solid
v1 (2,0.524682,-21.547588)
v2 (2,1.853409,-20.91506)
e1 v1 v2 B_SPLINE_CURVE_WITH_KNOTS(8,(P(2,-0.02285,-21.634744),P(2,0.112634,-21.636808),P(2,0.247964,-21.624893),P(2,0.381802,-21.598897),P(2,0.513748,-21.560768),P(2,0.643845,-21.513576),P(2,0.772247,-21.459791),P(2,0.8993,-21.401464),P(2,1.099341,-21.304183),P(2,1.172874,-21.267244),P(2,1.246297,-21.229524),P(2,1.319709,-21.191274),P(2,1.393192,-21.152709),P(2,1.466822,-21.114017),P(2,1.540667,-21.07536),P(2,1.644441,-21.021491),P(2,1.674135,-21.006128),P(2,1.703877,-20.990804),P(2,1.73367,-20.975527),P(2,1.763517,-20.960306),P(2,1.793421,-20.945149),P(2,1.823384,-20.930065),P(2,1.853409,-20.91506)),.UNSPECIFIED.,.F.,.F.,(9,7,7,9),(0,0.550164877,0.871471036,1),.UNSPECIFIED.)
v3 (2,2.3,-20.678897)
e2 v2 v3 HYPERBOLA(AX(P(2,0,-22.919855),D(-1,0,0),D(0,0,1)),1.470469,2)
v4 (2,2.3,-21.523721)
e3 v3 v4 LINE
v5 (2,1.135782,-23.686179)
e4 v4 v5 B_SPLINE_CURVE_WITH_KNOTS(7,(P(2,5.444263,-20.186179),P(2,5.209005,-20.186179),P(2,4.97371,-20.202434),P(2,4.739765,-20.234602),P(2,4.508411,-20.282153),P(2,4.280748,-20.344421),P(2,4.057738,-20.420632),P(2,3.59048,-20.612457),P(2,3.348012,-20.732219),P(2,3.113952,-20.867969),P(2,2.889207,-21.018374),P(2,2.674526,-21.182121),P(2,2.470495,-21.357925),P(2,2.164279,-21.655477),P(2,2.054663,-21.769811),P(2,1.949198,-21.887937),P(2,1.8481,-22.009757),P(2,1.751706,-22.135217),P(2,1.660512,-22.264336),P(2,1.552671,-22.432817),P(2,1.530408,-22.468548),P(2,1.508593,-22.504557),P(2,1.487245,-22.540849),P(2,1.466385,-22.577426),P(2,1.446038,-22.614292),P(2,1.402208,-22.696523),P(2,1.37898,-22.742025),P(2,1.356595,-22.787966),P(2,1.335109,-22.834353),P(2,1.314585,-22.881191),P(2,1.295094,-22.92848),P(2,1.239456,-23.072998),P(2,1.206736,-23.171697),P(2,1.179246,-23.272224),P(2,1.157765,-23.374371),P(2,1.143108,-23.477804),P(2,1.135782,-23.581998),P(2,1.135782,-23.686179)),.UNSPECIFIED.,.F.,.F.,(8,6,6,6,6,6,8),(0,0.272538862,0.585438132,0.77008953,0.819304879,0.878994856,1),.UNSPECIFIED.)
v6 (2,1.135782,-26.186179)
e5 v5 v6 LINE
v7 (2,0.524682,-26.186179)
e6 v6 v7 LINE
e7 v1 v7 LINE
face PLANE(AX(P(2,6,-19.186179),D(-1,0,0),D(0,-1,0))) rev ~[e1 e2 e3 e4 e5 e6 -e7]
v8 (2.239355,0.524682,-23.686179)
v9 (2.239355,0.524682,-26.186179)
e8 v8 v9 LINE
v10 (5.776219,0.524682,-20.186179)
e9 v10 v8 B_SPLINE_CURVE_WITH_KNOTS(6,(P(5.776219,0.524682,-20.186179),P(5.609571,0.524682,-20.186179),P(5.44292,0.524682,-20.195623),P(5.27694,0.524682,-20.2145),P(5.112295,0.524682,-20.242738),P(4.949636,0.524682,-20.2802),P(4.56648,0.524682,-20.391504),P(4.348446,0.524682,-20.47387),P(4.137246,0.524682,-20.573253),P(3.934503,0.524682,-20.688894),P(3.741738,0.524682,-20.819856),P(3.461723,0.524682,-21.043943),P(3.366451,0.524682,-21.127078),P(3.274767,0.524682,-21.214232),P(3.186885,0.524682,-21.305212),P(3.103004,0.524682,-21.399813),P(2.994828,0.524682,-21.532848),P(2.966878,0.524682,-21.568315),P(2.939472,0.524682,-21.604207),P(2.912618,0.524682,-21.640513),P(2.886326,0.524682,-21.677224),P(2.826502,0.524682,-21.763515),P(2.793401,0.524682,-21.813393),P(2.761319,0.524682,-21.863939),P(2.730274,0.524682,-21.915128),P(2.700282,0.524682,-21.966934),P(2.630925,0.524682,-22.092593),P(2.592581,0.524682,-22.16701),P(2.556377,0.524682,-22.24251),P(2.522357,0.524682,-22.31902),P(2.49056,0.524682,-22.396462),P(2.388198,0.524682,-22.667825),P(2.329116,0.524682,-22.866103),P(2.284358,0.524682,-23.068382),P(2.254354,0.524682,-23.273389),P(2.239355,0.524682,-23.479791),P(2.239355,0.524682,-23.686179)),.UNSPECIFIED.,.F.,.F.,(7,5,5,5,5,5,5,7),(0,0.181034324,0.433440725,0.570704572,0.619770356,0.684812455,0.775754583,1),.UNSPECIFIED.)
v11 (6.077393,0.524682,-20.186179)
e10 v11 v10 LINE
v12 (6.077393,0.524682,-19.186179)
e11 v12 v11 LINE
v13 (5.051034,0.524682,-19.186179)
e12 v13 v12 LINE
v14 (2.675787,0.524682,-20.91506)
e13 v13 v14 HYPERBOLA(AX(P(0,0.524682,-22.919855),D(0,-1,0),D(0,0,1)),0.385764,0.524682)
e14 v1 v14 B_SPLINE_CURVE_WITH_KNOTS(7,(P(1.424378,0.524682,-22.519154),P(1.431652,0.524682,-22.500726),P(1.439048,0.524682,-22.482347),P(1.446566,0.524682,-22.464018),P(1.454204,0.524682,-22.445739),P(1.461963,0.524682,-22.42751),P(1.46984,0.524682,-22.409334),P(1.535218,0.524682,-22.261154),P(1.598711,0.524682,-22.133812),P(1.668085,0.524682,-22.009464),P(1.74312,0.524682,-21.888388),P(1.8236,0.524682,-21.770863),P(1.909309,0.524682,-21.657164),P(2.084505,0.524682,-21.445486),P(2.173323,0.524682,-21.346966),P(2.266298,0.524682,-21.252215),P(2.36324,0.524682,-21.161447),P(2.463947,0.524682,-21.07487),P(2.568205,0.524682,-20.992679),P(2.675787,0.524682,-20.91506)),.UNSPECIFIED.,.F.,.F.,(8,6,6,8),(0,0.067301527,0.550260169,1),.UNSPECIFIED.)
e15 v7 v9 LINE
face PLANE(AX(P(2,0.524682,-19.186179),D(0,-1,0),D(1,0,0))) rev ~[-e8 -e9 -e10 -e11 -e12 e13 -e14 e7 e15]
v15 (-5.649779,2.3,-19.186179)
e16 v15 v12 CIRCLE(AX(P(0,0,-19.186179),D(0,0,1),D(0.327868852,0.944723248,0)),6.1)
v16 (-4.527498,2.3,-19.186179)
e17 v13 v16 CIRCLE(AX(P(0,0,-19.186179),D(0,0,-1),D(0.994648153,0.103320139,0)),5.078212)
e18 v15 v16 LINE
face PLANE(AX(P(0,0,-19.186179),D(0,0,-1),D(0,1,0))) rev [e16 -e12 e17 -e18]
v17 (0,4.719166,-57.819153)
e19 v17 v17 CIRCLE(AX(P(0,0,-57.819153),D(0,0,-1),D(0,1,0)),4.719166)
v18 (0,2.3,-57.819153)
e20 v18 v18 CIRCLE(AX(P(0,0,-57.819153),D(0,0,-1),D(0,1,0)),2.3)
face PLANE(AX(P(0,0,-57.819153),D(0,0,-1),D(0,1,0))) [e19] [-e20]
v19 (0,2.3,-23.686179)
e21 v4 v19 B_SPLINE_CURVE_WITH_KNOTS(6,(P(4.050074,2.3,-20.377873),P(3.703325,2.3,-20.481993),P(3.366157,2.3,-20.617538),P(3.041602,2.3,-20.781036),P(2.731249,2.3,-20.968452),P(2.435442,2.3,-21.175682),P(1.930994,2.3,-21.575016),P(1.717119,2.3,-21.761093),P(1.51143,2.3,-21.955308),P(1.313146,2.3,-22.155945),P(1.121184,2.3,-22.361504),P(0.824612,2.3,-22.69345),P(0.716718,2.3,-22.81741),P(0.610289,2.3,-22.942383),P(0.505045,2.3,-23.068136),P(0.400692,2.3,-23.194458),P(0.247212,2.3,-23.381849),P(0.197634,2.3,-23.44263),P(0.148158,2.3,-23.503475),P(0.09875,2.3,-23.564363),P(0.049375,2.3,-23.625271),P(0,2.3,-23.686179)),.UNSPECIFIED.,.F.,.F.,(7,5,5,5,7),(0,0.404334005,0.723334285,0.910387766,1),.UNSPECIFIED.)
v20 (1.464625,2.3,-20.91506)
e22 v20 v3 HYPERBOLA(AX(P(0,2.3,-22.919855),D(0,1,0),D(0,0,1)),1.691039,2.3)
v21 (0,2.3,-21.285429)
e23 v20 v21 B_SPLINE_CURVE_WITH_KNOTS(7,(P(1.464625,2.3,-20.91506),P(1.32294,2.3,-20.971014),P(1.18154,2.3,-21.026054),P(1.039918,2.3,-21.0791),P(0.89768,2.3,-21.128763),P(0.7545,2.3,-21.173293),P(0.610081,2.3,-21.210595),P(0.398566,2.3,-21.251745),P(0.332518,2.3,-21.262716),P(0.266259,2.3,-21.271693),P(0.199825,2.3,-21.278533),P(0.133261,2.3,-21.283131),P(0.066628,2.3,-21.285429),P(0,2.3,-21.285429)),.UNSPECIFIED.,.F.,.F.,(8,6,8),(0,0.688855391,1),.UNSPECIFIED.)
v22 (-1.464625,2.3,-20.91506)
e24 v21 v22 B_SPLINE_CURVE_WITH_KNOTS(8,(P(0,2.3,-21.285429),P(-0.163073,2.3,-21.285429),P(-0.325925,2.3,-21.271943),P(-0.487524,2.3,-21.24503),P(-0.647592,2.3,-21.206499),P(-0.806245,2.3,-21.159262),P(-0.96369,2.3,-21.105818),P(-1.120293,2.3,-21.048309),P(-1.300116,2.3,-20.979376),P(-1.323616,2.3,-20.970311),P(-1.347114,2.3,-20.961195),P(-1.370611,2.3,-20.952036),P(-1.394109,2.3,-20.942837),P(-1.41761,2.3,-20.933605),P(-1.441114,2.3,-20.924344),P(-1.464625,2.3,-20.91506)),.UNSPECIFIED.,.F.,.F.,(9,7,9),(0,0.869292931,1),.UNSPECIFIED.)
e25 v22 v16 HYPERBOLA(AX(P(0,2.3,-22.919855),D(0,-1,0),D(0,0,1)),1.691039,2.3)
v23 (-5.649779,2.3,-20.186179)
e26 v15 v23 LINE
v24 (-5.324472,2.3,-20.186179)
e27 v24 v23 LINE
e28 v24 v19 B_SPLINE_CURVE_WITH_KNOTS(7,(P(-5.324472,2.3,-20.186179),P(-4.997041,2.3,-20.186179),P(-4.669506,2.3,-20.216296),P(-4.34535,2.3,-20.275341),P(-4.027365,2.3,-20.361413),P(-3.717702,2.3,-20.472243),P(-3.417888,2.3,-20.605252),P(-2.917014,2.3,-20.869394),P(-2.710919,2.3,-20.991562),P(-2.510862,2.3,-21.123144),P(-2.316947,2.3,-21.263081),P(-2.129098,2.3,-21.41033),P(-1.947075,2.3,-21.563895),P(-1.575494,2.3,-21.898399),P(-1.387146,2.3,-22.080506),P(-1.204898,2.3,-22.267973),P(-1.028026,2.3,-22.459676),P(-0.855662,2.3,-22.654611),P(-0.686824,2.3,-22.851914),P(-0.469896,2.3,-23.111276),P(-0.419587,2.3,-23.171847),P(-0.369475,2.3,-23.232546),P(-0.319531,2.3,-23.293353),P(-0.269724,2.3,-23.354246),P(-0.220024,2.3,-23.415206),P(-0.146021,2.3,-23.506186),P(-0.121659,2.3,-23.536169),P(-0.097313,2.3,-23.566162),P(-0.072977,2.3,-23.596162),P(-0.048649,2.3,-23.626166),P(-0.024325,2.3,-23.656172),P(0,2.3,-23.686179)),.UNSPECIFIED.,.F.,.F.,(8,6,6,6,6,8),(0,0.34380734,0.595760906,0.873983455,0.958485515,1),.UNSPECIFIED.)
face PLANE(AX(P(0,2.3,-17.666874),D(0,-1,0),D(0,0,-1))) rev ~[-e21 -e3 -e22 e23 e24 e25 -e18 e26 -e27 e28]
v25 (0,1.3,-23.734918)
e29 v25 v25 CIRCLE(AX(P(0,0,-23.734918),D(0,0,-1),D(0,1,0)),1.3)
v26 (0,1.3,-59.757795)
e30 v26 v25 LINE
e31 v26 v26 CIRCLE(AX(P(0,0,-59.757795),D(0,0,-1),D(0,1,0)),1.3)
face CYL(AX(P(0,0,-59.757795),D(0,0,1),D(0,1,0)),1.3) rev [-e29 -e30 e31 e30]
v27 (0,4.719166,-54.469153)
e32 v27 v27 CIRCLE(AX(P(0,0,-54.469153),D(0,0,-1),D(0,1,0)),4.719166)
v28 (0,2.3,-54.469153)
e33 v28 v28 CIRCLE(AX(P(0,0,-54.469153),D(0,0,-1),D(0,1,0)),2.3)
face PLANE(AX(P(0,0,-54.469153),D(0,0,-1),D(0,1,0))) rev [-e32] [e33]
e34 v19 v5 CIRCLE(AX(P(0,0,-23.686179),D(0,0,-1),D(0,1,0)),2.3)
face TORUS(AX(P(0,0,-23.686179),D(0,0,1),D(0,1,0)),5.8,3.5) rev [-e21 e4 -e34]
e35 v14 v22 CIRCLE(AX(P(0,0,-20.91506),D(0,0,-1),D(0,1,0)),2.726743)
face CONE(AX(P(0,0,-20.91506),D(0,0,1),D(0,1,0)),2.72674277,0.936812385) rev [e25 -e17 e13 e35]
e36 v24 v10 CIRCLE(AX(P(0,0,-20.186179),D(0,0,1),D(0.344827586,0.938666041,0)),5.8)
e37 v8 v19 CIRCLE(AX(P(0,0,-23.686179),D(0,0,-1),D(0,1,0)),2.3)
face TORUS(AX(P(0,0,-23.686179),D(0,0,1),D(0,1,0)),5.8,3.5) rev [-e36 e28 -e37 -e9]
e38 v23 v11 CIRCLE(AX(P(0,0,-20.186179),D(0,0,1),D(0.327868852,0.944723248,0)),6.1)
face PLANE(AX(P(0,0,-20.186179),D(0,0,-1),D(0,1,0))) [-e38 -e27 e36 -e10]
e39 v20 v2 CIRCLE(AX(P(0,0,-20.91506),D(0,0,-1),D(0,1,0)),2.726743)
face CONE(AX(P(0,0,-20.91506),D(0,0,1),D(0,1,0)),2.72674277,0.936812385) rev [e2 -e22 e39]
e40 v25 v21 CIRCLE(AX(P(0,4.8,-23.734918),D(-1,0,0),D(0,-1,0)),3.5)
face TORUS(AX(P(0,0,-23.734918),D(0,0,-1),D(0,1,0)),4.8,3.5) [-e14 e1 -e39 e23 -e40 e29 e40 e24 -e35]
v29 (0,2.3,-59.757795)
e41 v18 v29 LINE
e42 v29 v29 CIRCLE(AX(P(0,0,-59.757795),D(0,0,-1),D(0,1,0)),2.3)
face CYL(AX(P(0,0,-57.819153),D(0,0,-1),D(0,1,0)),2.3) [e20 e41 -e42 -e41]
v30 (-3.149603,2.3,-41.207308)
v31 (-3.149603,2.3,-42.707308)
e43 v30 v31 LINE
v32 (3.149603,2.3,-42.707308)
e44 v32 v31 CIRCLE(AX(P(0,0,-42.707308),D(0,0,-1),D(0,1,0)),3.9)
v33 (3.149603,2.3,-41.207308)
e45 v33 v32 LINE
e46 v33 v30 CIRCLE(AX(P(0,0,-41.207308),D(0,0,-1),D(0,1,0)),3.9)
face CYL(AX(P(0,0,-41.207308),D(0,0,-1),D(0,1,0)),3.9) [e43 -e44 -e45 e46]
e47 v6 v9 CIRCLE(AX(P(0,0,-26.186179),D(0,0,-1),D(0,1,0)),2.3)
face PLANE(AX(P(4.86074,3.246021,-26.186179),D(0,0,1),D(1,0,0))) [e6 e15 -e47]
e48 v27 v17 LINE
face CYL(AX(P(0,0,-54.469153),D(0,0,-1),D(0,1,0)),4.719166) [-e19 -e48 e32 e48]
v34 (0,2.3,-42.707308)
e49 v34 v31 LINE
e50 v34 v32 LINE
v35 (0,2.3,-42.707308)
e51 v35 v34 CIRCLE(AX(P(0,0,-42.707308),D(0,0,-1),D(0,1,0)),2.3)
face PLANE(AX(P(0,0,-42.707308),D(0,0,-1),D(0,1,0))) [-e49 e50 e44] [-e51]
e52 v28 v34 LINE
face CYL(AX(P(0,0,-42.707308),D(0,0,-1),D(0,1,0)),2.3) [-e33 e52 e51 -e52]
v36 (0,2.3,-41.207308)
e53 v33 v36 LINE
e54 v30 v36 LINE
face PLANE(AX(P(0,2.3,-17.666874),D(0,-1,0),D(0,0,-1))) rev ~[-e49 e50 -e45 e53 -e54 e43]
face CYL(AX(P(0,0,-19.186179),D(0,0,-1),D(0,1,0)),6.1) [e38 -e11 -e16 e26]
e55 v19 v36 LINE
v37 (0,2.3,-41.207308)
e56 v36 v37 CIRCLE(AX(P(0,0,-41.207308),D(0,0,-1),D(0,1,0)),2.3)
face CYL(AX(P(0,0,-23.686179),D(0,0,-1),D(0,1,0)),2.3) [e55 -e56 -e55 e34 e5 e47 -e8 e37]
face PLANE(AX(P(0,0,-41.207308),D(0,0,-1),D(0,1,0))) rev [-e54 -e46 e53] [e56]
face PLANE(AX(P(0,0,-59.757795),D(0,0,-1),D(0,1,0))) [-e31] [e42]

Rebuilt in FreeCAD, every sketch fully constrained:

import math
import FreeCAD as App
import Part
import Sketcher


def add_polygon(sketch, points):
    """Adds a closed chain of lines whose ends are joined by coincident constraints."""
    first, n = sketch.GeometryCount, len(points)
    for a, b in zip(points, points[1:] + points[:1]):
        sketch.addGeometry(Part.LineSegment(App.Vector(*a, 0), App.Vector(*b, 0)), False)
    for i in range(n):
        sketch.addConstraint(Sketcher.Constraint("Coincident", first + i, 2, first + (i + 1) % n, 1))

doc = App.newDocument("Part")
body = doc.addObject("PartDesign::Body", "Body")

# Sketch on YZ plane
sketch1 = body.newObject("Sketcher::SketchObject", "Sketch")
sketch1.AttachmentSupport = (doc.getObject("YZ_Plane"), [""])
sketch1.MapMode = "FlatFace"
sketch1.addGeometry(Part.LineSegment(App.Vector(6.1, -19.19, 0), App.Vector(5.08, -19.19, 0)), False)
sketch1.addGeometry(Part.LineSegment(App.Vector(5.08, -19.19, 0), App.Vector(2.73, -20.92, 0)), False)
sketch1.addGeometry(Part.ArcOfCircle(Part.Circle(App.Vector(4.8, -23.73, 0), App.Vector(0, 0, 1), 3.5), math.radians(126), math.radians(180)), False)
sketch1.addGeometry(Part.LineSegment(App.Vector(1.3, -23.73, 0), App.Vector(1.3, -59.76, 0)), False)
sketch1.addGeometry(Part.LineSegment(App.Vector(1.3, -59.76, 0), App.Vector(2.3, -59.76, 0)), False)
sketch1.addGeometry(Part.LineSegment(App.Vector(2.3, -59.76, 0), App.Vector(2.3, -57.82, 0)), False)
sketch1.addGeometry(Part.LineSegment(App.Vector(2.3, -57.82, 0), App.Vector(4.72, -57.82, 0)), False)
sketch1.addGeometry(Part.LineSegment(App.Vector(4.72, -57.82, 0), App.Vector(4.72, -54.47, 0)), False)
sketch1.addGeometry(Part.LineSegment(App.Vector(4.72, -54.47, 0), App.Vector(2.3, -54.47, 0)), False)
sketch1.addGeometry(Part.LineSegment(App.Vector(2.3, -54.47, 0), App.Vector(2.3, -42.71, 0)), False)
sketch1.addGeometry(Part.LineSegment(App.Vector(2.3, -42.71, 0), App.Vector(3.9, -42.71, 0)), False)
sketch1.addGeometry(Part.LineSegment(App.Vector(3.9, -42.71, 0), App.Vector(3.9, -41.21, 0)), False)
sketch1.addGeometry(Part.LineSegment(App.Vector(3.9, -41.21, 0), App.Vector(2.3, -41.21, 0)), False)
sketch1.addGeometry(Part.LineSegment(App.Vector(2.3, -41.21, 0), App.Vector(2.3, -23.69, 0)), False)
sketch1.addGeometry(Part.ArcOfCircle(Part.Circle(App.Vector(5.8, -23.69, 0), App.Vector(0, 0, 1), 3.5), math.radians(90), math.radians(180)), False)
sketch1.addGeometry(Part.LineSegment(App.Vector(5.8, -20.19, 0), App.Vector(6.1, -20.19, 0)), False)
sketch1.addGeometry(Part.LineSegment(App.Vector(6.1, -20.19, 0), App.Vector(6.1, -19.19, 0)), False)
sketch1.addConstraint(Sketcher.Constraint("Coincident", 0, 2, 1, 1))
sketch1.addConstraint(Sketcher.Constraint("Tangent", 1, 2, 2, 1))
sketch1.addConstraint(Sketcher.Constraint("Tangent", 2, 2, 3, 1))
sketch1.addConstraint(Sketcher.Constraint("Coincident", 3, 2, 4, 1))
sketch1.addConstraint(Sketcher.Constraint("Coincident", 4, 2, 5, 1))
sketch1.addConstraint(Sketcher.Constraint("Coincident", 5, 2, 6, 1))
sketch1.addConstraint(Sketcher.Constraint("Coincident", 6, 2, 7, 1))
sketch1.addConstraint(Sketcher.Constraint("Coincident", 7, 2, 8, 1))
sketch1.addConstraint(Sketcher.Constraint("Coincident", 8, 2, 9, 1))
sketch1.addConstraint(Sketcher.Constraint("Coincident", 9, 2, 10, 1))
sketch1.addConstraint(Sketcher.Constraint("Coincident", 10, 2, 11, 1))
sketch1.addConstraint(Sketcher.Constraint("Coincident", 11, 2, 12, 1))
sketch1.addConstraint(Sketcher.Constraint("Coincident", 12, 2, 13, 1))
sketch1.addConstraint(Sketcher.Constraint("Tangent", 13, 2, 14, 2))
sketch1.addConstraint(Sketcher.Constraint("Tangent", 14, 1, 15, 1))
sketch1.addConstraint(Sketcher.Constraint("Coincident", 15, 2, 16, 1))
sketch1.addConstraint(Sketcher.Constraint("Coincident", 16, 2, 0, 1))
sketch1.addConstraint(Sketcher.Constraint("Horizontal", 0))
sketch1.addConstraint(Sketcher.Constraint("Vertical", 3))
sketch1.addConstraint(Sketcher.Constraint("Horizontal", 4))
sketch1.addConstraint(Sketcher.Constraint("Vertical", 5))
sketch1.addConstraint(Sketcher.Constraint("Horizontal", 6))
sketch1.addConstraint(Sketcher.Constraint("Vertical", 7))
sketch1.addConstraint(Sketcher.Constraint("Horizontal", 8))
sketch1.addConstraint(Sketcher.Constraint("Vertical", 9))
sketch1.addConstraint(Sketcher.Constraint("Horizontal", 10))
sketch1.addConstraint(Sketcher.Constraint("Vertical", 11))
sketch1.addConstraint(Sketcher.Constraint("Horizontal", 12))
sketch1.addConstraint(Sketcher.Constraint("Vertical", 13))
sketch1.addConstraint(Sketcher.Constraint("Horizontal", 15))
sketch1.addConstraint(Sketcher.Constraint("Vertical", 16))
sketch1.addConstraint(Sketcher.Constraint("Equal", 2, 14))
sketch1.addConstraint(Sketcher.Constraint("Vertical", 5, 2, 8, 2))
sketch1.addConstraint(Sketcher.Constraint("Vertical", 9, 2, 12, 2))
sketch1.addConstraint(Sketcher.Constraint("Equal", 4, 16))
sketch1.addConstraint(Sketcher.Constraint("Radius", 2, 3.5))
sketch1.addConstraint(Sketcher.Constraint("DistanceX", 4, 1, 4, 2, 1.0))
sketch1.addConstraint(Sketcher.Constraint("DistanceX", 10, 1, 10, 2, 1.6))
sketch1.addConstraint(Sketcher.Constraint("DistanceX", 15, 1, 15, 2, 0.3))
sketch1.addConstraint(Sketcher.Constraint("DistanceY", 11, 1, 11, 2, 1.5))
sketch1.addConstraint(Sketcher.Constraint("DistanceY", 7, 1, 7, 2, 3.35))
sketch1.addConstraint(Sketcher.Constraint("DistanceX", -1, 1, 2, 3, 4.8))
sketch1.addConstraint(Sketcher.Constraint("DistanceX", 0, 2, 0, 1, 1.021788))
sketch1.addConstraint(Sketcher.Constraint("DistanceY", 13, 1, 13, 2, 17.52113))
sketch1.addConstraint(Sketcher.Constraint("DistanceX", 6, 1, 6, 2, 2.419166))
sketch1.addConstraint(Sketcher.Constraint("DistanceY", 3, 2, 3, 1, 36.022877))
sketch1.addConstraint(Sketcher.Constraint("DistanceY", 5, 1, 5, 2, 1.938642))
sketch1.addConstraint(Sketcher.Constraint("DistanceY", 9, 1, 9, 2, 11.761844))
sketch1.addConstraint(Sketcher.Constraint("DistanceY", 2, 3, -1, 1, 23.734918))
revolution = body.newObject("PartDesign::Revolution", "Revolution")
revolution.Profile = sketch1
revolution.ReferenceAxis = (sketch1, ["V_Axis"])
revolution.Angle = 360

# Sketch on XY plane
sketch2 = body.newObject("Sketcher::SketchObject", "Sketch001")
sketch2.AttachmentSupport = (doc.getObject("XY_Plane"), [""])
sketch2.MapMode = "FlatFace"
sketch2.AttachmentOffset = App.Placement(App.Vector(0, 0, -19.186179), App.Rotation())
add_polygon(sketch2, [(2, 6), (2, 1), (8, 1), (8, 6)])  # lines 0-3
sketch2.addConstraint(Sketcher.Constraint("Vertical", 0))
sketch2.addConstraint(Sketcher.Constraint("Horizontal", 1))
sketch2.addConstraint(Sketcher.Constraint("DistanceX", -1, 1, 0, 2, 2.0))
sketch2.addConstraint(Sketcher.Constraint("DistanceY", -1, 1, 3, 2, 6.0))
sketch2.addConstraint(Sketcher.Constraint("DistanceY", 0, 2, 0, 1, 5.475318))
sketch2.addConstraint(Sketcher.Constraint("DistanceY", 1, 2, 2, 2, 5.4334))
sketch2.addConstraint(Sketcher.Constraint("DistanceX", 1, 1, 1, 2, 5.756224))
sketch2.addConstraint(Sketcher.Constraint("DistanceX", 2, 2, 1, 2, 0.048222))
pocket1 = body.newObject("PartDesign::Pocket", "Pocket")
pocket1.Profile = sketch2
pocket1.Length = 7

# Sketch on YZ plane
sketch3 = body.newObject("Sketcher::SketchObject", "Sketch002")
sketch3.AttachmentSupport = (doc.getObject("YZ_Plane"), [""])
sketch3.MapMode = "FlatFace"
add_polygon(sketch3, [(8, -18), (2, -18), (2, -45), (8, -45)])  # lines 0-3
sketch3.addConstraint(Sketcher.Constraint("Horizontal", 0))
sketch3.addConstraint(Sketcher.Constraint("Vertical", 1))
sketch3.addConstraint(Sketcher.Constraint("Horizontal", 2))
sketch3.addConstraint(Sketcher.Constraint("Vertical", 3))
sketch3.addConstraint(Sketcher.Constraint("DistanceX", -1, 1, 0, 2, 2.3))
sketch3.addConstraint(Sketcher.Constraint("DistanceX", 0, 2, 0, 1, 5.726696))
sketch3.addConstraint(Sketcher.Constraint("DistanceY", 1, 2, 1, 1, 26.933595))
sketch3.addConstraint(Sketcher.Constraint("DistanceY", 1, 2, -1, 1, 44.600468))
pocket2 = body.newObject("PartDesign::Pocket", "Pocket001")
pocket2.Profile = sketch3
pocket2.Type = "ThroughAll"
pocket2.Midplane = True

doc.recompute()
